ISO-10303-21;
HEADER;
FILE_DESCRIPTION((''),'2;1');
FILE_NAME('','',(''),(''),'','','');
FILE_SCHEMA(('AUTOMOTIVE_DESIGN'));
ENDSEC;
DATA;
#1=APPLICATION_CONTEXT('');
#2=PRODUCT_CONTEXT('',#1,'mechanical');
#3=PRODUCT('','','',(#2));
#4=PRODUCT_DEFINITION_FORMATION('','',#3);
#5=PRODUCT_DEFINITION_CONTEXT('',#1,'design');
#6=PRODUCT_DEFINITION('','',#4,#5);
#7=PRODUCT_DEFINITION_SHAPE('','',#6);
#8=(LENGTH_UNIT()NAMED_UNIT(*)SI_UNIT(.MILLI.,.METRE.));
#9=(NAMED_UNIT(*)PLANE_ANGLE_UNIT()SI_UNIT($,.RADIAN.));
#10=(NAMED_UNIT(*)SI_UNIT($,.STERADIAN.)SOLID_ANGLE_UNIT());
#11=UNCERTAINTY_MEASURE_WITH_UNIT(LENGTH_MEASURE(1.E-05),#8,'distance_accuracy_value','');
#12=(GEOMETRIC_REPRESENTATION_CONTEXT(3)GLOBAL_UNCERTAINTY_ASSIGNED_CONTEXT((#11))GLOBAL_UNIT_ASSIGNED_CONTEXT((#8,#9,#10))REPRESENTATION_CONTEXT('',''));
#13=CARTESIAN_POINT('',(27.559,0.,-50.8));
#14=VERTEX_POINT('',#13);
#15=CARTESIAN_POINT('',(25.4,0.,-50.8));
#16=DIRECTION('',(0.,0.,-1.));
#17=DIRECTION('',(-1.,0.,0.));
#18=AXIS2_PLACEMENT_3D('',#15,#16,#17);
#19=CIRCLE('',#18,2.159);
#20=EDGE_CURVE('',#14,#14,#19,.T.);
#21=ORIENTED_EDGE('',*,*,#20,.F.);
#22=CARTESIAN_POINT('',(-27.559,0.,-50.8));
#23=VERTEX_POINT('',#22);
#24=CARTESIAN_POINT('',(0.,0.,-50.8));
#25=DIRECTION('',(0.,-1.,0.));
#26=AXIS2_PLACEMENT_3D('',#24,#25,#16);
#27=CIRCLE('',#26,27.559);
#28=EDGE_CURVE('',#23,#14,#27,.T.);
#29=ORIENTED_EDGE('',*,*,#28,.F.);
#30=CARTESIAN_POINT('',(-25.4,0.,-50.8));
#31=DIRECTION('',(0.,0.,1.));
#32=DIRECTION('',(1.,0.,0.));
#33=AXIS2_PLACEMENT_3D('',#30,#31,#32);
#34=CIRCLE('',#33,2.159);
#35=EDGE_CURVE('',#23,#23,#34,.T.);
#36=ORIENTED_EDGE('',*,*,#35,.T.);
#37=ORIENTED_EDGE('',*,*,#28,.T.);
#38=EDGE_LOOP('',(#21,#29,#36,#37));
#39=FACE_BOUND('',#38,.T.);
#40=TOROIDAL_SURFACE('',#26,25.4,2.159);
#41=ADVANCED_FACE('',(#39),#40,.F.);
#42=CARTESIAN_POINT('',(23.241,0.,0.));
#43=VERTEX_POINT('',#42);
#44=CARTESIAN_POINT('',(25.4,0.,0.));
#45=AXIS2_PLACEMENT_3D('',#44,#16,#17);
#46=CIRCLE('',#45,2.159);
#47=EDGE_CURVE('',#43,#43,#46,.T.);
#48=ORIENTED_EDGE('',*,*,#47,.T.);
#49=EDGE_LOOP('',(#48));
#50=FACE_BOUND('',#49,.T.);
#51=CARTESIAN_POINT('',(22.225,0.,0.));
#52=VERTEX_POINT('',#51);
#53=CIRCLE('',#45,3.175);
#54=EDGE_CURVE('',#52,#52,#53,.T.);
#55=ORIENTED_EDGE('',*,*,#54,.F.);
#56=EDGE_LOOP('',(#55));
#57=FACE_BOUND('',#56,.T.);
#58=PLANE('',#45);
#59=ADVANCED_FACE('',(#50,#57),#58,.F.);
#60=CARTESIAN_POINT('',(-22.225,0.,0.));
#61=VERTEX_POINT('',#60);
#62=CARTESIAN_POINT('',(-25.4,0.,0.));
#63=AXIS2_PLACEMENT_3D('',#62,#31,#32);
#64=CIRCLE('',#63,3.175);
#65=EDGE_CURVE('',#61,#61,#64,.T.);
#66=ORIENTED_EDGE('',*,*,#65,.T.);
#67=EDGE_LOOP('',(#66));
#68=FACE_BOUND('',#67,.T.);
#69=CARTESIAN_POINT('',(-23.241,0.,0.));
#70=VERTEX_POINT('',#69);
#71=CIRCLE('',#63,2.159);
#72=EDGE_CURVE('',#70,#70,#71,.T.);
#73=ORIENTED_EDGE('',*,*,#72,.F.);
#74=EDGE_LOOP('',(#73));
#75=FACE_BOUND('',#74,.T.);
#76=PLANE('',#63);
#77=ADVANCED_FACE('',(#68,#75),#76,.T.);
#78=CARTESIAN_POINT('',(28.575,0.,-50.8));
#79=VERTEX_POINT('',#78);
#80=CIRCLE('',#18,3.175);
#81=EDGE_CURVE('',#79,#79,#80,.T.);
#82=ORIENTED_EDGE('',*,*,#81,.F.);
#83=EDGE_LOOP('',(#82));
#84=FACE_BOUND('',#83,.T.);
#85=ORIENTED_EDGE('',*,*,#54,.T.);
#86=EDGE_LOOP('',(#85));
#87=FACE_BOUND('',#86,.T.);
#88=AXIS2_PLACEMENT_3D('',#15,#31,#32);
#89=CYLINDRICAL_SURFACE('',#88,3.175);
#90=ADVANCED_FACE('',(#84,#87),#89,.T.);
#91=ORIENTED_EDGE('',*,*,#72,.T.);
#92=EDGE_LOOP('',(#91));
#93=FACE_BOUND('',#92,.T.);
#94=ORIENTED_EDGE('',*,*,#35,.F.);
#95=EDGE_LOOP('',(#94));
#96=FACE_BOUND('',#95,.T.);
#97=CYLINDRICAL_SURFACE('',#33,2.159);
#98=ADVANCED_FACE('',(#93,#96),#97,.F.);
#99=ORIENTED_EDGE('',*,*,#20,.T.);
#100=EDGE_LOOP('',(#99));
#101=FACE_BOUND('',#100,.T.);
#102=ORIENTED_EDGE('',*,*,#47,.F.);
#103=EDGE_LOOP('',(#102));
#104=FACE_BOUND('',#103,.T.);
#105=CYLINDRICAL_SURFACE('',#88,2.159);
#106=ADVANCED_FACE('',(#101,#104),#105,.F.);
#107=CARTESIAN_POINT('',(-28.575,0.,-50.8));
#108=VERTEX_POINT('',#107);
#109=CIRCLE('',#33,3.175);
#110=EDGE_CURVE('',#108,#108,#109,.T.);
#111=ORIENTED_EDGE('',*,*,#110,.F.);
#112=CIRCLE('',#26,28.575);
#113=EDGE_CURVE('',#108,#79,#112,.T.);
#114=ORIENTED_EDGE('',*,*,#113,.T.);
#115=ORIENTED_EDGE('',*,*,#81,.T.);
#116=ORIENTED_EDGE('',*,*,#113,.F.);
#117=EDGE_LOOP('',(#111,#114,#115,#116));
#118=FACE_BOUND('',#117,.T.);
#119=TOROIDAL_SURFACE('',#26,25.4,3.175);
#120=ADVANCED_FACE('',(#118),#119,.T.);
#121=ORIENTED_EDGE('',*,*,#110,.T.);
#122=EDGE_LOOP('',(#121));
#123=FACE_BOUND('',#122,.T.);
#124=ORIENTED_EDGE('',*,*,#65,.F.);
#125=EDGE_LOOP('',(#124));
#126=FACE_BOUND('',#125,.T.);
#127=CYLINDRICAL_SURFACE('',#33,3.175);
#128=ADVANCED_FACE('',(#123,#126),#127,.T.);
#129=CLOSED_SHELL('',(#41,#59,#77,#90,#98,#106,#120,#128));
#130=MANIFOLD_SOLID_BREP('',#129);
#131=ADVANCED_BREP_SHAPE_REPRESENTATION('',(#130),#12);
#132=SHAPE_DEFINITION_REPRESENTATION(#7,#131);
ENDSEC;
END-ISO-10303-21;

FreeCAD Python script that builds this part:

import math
import FreeCAD as App
import Part
import Sketcher

V = App.Vector
Q = App.Units.Quantity

doc = App.newDocument("Part")
body = doc.addObject("PartDesign::Body", "Body")

# Sketch on XY plane
sketch1 = body.newObject("Sketcher::SketchObject", "Sketch")
sketch1.AttachmentSupport = (doc.getObject("XY_Plane"), [""])
sketch1.MapMode = "FlatFace"
sketch1.addGeometry([
    Part.Circle(V(-25.4, 0, 0), V(0, 0, 1), 3.2),
    Part.Circle(V(-25.4, 0, 0), V(0, 0, 1), 2.2),
], False)
sketch1.addConstraint([
    Sketcher.Constraint("Coincident", 1, 3, 0, 3),
    Sketcher.Constraint("PointOnObject", 0, 3, -1),
    Sketcher.Constraint("Diameter", 0, Q("0.25 in")),
    Sketcher.Constraint("Diameter", 1, Q("0.17 in")),
    Sketcher.Constraint("DistanceX", 0, 3, -1, 1, Q("1 in")),
])

# Sketch on XZ plane
sketch2 = body.newObject("Sketcher::SketchObject", "Sketch001")
sketch2.AttachmentSupport = (doc.getObject("XZ_Plane"), [""])
sketch2.MapMode = "FlatFace"
sketch2.addGeometry([
    Part.LineSegment(V(-25, 0, 0), V(-25, -51, 0)),
    Part.ArcOfCircle(Part.Circle(V(0, -51, 0), V(0, 0, 1), 25), math.radians(180), math.radians(360)),
    Part.LineSegment(V(25, -51, 0), V(25, 0, 0)),
], False)
sketch2.addConstraint([
    Sketcher.Constraint("Tangent", 0, 2, 1, 1),
    Sketcher.Constraint("Tangent", 1, 2, 2, 1),
    Sketcher.Constraint("Vertical", 0),
    Sketcher.Constraint("Vertical", 2),
    Sketcher.Constraint("Symmetric", 0, 1, 2, 2, -1, 1),
    Sketcher.Constraint("PointOnObject", 0, 1, -1),
    Sketcher.Constraint("Radius", 1, Q("1 in")),
    Sketcher.Constraint("DistanceY", 0, 2, 0, 1, Q("2 in")),
])
doc.recompute()

additivepipe = body.newObject("PartDesign::AdditivePipe", "AdditivePipe")
additivepipe.Profile = sketch1
additivepipe.Spine = (sketch2, ["Edge1", "Edge2", "Edge3"])

doc.recompute()
